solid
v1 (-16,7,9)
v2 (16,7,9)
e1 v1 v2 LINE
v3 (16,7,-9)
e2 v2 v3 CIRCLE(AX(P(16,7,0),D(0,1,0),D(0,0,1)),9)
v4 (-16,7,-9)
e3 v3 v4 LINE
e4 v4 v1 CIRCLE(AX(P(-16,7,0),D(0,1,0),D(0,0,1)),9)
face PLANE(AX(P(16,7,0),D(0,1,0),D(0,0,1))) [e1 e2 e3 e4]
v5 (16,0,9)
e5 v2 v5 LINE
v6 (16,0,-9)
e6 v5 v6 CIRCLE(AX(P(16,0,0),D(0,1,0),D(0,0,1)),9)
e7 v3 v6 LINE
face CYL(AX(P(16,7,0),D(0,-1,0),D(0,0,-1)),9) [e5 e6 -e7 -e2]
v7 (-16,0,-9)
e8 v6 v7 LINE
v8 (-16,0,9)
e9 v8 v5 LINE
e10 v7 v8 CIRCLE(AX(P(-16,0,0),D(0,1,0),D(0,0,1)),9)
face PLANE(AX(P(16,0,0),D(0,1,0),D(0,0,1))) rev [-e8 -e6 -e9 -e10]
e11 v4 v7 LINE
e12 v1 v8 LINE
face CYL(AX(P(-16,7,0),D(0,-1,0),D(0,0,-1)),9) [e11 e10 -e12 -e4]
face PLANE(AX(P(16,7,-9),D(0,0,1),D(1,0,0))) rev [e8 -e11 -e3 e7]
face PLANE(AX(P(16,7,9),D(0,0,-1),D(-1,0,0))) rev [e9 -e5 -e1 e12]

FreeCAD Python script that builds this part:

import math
import FreeCAD as App
import Part
import Sketcher
from FreeCAD import Vector

doc = App.newDocument("Part")
params = doc.addObject("Spreadsheet::Sheet", "Params")
for row, (alias, value) in enumerate([
    ("sketch1_radius", "9 mm"),
    ("sketch1_width", "32 mm"),
    ("pad1_length", "7 mm"),
], start=1):
    params.set(f"A{row}", alias)
    params.set(f"B{row}", "=" + value)
    params.setAlias(f"B{row}", alias)

body = doc.addObject("PartDesign::Body", "Body")

# Sketch on XZ plane
sketch1 = body.newObject("Sketcher::SketchObject", "Sketch")
sketch1.AttachmentSupport = (doc.getObject("XZ_Plane"), [""])
sketch1.MapMode = "FlatFace"
sketch1.addGeometry(Part.LineSegment(Vector(-16, 9, 0), Vector(16, 9, 0)), False)
sketch1.addGeometry(Part.ArcOfCircle(Part.Circle(Vector(16, 0, 0), Vector(0, 0, 1), 9), math.radians(-90), math.radians(90)), False)
sketch1.addGeometry(Part.LineSegment(Vector(16, -9, 0), Vector(-16, -9, 0)), False)
sketch1.addGeometry(Part.ArcOfCircle(Part.Circle(Vector(-16, 0, 0), Vector(0, 0, 1), 9), math.radians(90), math.radians(270)), False)
sketch1.addConstraint(Sketcher.Constraint("Tangent", 0, 2, 1, 2))
sketch1.addConstraint(Sketcher.Constraint("Tangent", 1, 1, 2, 1))
sketch1.addConstraint(Sketcher.Constraint("Tangent", 2, 2, 3, 2))
sketch1.addConstraint(Sketcher.Constraint("Tangent", 3, 1, 0, 1))
sketch1.addConstraint(Sketcher.Constraint("Horizontal", 0))
sketch1.addConstraint(Sketcher.Constraint("Horizontal", 2))
sketch1.addConstraint(Sketcher.Constraint("Symmetric", 1, 3, 3, 3, -1, 1))
sketch1.addConstraint(Sketcher.Constraint("Radius", 1, 9.0))
sketch1.addConstraint(Sketcher.Constraint("DistanceX", 0, 1, 0, 2, 32.0))
sketch1.setExpression("Constraints[7]", "Params.sketch1_radius")
sketch1.setExpression("Constraints[8]", "Params.sketch1_width")
pad1 = body.newObject("PartDesign::Pad", "Pad")
pad1.Profile = sketch1
pad1.setExpression("Length", "Params.pad1_length")
pad1.Reversed = True

doc.recompute()
